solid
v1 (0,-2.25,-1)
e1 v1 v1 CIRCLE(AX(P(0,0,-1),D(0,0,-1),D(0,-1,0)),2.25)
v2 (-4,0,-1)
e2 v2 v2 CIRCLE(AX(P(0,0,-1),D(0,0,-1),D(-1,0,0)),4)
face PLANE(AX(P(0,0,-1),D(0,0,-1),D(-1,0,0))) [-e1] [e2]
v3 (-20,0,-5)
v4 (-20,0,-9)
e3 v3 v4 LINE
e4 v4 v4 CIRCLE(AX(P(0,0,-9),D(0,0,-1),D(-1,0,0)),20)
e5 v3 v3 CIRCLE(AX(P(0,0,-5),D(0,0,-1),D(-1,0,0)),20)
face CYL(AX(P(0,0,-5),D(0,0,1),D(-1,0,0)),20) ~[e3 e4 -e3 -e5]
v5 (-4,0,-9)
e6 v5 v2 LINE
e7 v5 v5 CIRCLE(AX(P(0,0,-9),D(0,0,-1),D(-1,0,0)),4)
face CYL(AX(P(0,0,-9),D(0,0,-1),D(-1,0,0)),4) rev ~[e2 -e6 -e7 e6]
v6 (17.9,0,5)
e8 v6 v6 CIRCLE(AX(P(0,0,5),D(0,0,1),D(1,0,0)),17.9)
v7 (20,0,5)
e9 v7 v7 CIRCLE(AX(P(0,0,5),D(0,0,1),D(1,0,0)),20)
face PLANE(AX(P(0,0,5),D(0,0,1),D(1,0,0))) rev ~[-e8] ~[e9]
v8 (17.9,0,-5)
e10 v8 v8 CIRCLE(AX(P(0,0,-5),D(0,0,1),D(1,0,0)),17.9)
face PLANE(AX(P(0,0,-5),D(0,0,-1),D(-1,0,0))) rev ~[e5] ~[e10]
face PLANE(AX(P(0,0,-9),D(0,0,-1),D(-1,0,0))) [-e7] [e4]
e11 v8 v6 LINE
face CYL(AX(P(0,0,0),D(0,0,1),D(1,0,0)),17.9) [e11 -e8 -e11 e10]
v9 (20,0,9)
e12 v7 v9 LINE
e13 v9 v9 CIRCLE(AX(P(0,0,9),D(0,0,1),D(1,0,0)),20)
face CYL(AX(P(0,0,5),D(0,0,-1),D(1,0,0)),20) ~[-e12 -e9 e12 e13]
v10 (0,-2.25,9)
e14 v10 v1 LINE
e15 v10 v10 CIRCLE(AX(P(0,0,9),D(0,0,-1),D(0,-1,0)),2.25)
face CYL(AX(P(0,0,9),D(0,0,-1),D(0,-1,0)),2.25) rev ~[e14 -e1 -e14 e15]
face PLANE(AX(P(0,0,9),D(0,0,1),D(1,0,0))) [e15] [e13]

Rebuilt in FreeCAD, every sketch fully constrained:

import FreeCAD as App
import Part
import Sketcher

V = App.Vector
Q = App.Units.Quantity

doc = App.newDocument("Part")
body = doc.addObject("PartDesign::Body", "Body")

sketch1 = body.newObject("Sketcher::SketchObject", "Sketch")
sketch1.AttachmentSupport = (doc.getObject("XY_Plane"), [""])
sketch1.MapMode = "FlatFace"
sketch1.addGeometry(Part.Circle(V(0, 0, 0), V(0, 0, 1), 18), False)
sketch1.addConstraint([
    Sketcher.Constraint("Coincident", 0, 3, -1, 1),
    Sketcher.Constraint("Diameter", 0, Q("35.8 mm")),
])
pad1 = body.newObject("PartDesign::Pad", "Pad")
pad1.Profile = sketch1
pad1.Length = 10
pad1.Midplane = True

sketch2 = body.newObject("Sketcher::SketchObject", "Sketch001")
sketch2.AttachmentSupport = (doc.getObject("XY_Plane"), [""])
sketch2.MapMode = "FlatFace"
sketch2.AttachmentOffset = App.Placement(V(0, 0, 5), App.Rotation())
sketch2.addGeometry(Part.Circle(V(0, 0, 0), V(0, 0, 1), 20), False)
sketch2.addConstraint([
    Sketcher.Constraint("Coincident", 0, 3, -1, 1),
    Sketcher.Constraint("Diameter", 0, Q("40 mm")),
])
pad2 = body.newObject("PartDesign::Pad", "Pad001")
pad2.Profile = sketch2
pad2.Length = 4

sketch3 = body.newObject("Sketcher::SketchObject", "Sketch002")
sketch3.AttachmentSupport = (doc.getObject("XY_Plane"), [""])
sketch3.MapMode = "FlatFace"
sketch3.AttachmentOffset = App.Placement(V(0, 0, -5), App.Rotation())
sketch3.addGeometry(Part.Circle(V(0, 0, 0), V(0, 0, 1), 20), False)
sketch3.addConstraint([
    Sketcher.Constraint("Coincident", 0, 3, -1, 1),
    Sketcher.Constraint("Diameter", 0, Q("40 mm")),
])
pad3 = body.newObject("PartDesign::Pad", "Pad002")
pad3.Profile = sketch3
pad3.Length = 4
pad3.Reversed = True

sketch4 = body.newObject("Sketcher::SketchObject", "Sketch003")
sketch4.AttachmentSupport = (doc.getObject("XY_Plane"), [""])
sketch4.MapMode = "FlatFace"
sketch4.AttachmentOffset = App.Placement(V(0, 0, -9), App.Rotation())
sketch4.addGeometry(Part.Circle(V(0, 0, 0), V(0, 0, 1), 4), False)
sketch4.addConstraint([
    Sketcher.Constraint("Coincident", 0, 3, -1, 1),
    Sketcher.Constraint("Diameter", 0, Q("8 mm")),
])
pocket1 = body.newObject("PartDesign::Pocket", "Pocket")
pocket1.Profile = sketch4
pocket1.Length = 8
pocket1.Reversed = True

sketch5 = body.newObject("Sketcher::SketchObject", "Sketch004")
sketch5.AttachmentSupport = (doc.getObject("XY_Plane"), [""])
sketch5.MapMode = "FlatFace"
sketch5.AttachmentOffset = App.Placement(V(0, 0, 9), App.Rotation())
sketch5.addGeometry(Part.Circle(V(0, 0, 0), V(0, 0, 1), 2.2), False)
sketch5.addConstraint([
    Sketcher.Constraint("Coincident", 0, 3, -1, 1),
    Sketcher.Constraint("Diameter", 0, Q("4.5 mm")),
])
doc.recompute()
hole = body.newObject("PartDesign::Hole", "Hole")
hole.Profile = sketch5
hole.ThreadType = "None"
hole.Diameter = 4.5
hole.DepthType = "ThroughAll"

doc.recompute()
